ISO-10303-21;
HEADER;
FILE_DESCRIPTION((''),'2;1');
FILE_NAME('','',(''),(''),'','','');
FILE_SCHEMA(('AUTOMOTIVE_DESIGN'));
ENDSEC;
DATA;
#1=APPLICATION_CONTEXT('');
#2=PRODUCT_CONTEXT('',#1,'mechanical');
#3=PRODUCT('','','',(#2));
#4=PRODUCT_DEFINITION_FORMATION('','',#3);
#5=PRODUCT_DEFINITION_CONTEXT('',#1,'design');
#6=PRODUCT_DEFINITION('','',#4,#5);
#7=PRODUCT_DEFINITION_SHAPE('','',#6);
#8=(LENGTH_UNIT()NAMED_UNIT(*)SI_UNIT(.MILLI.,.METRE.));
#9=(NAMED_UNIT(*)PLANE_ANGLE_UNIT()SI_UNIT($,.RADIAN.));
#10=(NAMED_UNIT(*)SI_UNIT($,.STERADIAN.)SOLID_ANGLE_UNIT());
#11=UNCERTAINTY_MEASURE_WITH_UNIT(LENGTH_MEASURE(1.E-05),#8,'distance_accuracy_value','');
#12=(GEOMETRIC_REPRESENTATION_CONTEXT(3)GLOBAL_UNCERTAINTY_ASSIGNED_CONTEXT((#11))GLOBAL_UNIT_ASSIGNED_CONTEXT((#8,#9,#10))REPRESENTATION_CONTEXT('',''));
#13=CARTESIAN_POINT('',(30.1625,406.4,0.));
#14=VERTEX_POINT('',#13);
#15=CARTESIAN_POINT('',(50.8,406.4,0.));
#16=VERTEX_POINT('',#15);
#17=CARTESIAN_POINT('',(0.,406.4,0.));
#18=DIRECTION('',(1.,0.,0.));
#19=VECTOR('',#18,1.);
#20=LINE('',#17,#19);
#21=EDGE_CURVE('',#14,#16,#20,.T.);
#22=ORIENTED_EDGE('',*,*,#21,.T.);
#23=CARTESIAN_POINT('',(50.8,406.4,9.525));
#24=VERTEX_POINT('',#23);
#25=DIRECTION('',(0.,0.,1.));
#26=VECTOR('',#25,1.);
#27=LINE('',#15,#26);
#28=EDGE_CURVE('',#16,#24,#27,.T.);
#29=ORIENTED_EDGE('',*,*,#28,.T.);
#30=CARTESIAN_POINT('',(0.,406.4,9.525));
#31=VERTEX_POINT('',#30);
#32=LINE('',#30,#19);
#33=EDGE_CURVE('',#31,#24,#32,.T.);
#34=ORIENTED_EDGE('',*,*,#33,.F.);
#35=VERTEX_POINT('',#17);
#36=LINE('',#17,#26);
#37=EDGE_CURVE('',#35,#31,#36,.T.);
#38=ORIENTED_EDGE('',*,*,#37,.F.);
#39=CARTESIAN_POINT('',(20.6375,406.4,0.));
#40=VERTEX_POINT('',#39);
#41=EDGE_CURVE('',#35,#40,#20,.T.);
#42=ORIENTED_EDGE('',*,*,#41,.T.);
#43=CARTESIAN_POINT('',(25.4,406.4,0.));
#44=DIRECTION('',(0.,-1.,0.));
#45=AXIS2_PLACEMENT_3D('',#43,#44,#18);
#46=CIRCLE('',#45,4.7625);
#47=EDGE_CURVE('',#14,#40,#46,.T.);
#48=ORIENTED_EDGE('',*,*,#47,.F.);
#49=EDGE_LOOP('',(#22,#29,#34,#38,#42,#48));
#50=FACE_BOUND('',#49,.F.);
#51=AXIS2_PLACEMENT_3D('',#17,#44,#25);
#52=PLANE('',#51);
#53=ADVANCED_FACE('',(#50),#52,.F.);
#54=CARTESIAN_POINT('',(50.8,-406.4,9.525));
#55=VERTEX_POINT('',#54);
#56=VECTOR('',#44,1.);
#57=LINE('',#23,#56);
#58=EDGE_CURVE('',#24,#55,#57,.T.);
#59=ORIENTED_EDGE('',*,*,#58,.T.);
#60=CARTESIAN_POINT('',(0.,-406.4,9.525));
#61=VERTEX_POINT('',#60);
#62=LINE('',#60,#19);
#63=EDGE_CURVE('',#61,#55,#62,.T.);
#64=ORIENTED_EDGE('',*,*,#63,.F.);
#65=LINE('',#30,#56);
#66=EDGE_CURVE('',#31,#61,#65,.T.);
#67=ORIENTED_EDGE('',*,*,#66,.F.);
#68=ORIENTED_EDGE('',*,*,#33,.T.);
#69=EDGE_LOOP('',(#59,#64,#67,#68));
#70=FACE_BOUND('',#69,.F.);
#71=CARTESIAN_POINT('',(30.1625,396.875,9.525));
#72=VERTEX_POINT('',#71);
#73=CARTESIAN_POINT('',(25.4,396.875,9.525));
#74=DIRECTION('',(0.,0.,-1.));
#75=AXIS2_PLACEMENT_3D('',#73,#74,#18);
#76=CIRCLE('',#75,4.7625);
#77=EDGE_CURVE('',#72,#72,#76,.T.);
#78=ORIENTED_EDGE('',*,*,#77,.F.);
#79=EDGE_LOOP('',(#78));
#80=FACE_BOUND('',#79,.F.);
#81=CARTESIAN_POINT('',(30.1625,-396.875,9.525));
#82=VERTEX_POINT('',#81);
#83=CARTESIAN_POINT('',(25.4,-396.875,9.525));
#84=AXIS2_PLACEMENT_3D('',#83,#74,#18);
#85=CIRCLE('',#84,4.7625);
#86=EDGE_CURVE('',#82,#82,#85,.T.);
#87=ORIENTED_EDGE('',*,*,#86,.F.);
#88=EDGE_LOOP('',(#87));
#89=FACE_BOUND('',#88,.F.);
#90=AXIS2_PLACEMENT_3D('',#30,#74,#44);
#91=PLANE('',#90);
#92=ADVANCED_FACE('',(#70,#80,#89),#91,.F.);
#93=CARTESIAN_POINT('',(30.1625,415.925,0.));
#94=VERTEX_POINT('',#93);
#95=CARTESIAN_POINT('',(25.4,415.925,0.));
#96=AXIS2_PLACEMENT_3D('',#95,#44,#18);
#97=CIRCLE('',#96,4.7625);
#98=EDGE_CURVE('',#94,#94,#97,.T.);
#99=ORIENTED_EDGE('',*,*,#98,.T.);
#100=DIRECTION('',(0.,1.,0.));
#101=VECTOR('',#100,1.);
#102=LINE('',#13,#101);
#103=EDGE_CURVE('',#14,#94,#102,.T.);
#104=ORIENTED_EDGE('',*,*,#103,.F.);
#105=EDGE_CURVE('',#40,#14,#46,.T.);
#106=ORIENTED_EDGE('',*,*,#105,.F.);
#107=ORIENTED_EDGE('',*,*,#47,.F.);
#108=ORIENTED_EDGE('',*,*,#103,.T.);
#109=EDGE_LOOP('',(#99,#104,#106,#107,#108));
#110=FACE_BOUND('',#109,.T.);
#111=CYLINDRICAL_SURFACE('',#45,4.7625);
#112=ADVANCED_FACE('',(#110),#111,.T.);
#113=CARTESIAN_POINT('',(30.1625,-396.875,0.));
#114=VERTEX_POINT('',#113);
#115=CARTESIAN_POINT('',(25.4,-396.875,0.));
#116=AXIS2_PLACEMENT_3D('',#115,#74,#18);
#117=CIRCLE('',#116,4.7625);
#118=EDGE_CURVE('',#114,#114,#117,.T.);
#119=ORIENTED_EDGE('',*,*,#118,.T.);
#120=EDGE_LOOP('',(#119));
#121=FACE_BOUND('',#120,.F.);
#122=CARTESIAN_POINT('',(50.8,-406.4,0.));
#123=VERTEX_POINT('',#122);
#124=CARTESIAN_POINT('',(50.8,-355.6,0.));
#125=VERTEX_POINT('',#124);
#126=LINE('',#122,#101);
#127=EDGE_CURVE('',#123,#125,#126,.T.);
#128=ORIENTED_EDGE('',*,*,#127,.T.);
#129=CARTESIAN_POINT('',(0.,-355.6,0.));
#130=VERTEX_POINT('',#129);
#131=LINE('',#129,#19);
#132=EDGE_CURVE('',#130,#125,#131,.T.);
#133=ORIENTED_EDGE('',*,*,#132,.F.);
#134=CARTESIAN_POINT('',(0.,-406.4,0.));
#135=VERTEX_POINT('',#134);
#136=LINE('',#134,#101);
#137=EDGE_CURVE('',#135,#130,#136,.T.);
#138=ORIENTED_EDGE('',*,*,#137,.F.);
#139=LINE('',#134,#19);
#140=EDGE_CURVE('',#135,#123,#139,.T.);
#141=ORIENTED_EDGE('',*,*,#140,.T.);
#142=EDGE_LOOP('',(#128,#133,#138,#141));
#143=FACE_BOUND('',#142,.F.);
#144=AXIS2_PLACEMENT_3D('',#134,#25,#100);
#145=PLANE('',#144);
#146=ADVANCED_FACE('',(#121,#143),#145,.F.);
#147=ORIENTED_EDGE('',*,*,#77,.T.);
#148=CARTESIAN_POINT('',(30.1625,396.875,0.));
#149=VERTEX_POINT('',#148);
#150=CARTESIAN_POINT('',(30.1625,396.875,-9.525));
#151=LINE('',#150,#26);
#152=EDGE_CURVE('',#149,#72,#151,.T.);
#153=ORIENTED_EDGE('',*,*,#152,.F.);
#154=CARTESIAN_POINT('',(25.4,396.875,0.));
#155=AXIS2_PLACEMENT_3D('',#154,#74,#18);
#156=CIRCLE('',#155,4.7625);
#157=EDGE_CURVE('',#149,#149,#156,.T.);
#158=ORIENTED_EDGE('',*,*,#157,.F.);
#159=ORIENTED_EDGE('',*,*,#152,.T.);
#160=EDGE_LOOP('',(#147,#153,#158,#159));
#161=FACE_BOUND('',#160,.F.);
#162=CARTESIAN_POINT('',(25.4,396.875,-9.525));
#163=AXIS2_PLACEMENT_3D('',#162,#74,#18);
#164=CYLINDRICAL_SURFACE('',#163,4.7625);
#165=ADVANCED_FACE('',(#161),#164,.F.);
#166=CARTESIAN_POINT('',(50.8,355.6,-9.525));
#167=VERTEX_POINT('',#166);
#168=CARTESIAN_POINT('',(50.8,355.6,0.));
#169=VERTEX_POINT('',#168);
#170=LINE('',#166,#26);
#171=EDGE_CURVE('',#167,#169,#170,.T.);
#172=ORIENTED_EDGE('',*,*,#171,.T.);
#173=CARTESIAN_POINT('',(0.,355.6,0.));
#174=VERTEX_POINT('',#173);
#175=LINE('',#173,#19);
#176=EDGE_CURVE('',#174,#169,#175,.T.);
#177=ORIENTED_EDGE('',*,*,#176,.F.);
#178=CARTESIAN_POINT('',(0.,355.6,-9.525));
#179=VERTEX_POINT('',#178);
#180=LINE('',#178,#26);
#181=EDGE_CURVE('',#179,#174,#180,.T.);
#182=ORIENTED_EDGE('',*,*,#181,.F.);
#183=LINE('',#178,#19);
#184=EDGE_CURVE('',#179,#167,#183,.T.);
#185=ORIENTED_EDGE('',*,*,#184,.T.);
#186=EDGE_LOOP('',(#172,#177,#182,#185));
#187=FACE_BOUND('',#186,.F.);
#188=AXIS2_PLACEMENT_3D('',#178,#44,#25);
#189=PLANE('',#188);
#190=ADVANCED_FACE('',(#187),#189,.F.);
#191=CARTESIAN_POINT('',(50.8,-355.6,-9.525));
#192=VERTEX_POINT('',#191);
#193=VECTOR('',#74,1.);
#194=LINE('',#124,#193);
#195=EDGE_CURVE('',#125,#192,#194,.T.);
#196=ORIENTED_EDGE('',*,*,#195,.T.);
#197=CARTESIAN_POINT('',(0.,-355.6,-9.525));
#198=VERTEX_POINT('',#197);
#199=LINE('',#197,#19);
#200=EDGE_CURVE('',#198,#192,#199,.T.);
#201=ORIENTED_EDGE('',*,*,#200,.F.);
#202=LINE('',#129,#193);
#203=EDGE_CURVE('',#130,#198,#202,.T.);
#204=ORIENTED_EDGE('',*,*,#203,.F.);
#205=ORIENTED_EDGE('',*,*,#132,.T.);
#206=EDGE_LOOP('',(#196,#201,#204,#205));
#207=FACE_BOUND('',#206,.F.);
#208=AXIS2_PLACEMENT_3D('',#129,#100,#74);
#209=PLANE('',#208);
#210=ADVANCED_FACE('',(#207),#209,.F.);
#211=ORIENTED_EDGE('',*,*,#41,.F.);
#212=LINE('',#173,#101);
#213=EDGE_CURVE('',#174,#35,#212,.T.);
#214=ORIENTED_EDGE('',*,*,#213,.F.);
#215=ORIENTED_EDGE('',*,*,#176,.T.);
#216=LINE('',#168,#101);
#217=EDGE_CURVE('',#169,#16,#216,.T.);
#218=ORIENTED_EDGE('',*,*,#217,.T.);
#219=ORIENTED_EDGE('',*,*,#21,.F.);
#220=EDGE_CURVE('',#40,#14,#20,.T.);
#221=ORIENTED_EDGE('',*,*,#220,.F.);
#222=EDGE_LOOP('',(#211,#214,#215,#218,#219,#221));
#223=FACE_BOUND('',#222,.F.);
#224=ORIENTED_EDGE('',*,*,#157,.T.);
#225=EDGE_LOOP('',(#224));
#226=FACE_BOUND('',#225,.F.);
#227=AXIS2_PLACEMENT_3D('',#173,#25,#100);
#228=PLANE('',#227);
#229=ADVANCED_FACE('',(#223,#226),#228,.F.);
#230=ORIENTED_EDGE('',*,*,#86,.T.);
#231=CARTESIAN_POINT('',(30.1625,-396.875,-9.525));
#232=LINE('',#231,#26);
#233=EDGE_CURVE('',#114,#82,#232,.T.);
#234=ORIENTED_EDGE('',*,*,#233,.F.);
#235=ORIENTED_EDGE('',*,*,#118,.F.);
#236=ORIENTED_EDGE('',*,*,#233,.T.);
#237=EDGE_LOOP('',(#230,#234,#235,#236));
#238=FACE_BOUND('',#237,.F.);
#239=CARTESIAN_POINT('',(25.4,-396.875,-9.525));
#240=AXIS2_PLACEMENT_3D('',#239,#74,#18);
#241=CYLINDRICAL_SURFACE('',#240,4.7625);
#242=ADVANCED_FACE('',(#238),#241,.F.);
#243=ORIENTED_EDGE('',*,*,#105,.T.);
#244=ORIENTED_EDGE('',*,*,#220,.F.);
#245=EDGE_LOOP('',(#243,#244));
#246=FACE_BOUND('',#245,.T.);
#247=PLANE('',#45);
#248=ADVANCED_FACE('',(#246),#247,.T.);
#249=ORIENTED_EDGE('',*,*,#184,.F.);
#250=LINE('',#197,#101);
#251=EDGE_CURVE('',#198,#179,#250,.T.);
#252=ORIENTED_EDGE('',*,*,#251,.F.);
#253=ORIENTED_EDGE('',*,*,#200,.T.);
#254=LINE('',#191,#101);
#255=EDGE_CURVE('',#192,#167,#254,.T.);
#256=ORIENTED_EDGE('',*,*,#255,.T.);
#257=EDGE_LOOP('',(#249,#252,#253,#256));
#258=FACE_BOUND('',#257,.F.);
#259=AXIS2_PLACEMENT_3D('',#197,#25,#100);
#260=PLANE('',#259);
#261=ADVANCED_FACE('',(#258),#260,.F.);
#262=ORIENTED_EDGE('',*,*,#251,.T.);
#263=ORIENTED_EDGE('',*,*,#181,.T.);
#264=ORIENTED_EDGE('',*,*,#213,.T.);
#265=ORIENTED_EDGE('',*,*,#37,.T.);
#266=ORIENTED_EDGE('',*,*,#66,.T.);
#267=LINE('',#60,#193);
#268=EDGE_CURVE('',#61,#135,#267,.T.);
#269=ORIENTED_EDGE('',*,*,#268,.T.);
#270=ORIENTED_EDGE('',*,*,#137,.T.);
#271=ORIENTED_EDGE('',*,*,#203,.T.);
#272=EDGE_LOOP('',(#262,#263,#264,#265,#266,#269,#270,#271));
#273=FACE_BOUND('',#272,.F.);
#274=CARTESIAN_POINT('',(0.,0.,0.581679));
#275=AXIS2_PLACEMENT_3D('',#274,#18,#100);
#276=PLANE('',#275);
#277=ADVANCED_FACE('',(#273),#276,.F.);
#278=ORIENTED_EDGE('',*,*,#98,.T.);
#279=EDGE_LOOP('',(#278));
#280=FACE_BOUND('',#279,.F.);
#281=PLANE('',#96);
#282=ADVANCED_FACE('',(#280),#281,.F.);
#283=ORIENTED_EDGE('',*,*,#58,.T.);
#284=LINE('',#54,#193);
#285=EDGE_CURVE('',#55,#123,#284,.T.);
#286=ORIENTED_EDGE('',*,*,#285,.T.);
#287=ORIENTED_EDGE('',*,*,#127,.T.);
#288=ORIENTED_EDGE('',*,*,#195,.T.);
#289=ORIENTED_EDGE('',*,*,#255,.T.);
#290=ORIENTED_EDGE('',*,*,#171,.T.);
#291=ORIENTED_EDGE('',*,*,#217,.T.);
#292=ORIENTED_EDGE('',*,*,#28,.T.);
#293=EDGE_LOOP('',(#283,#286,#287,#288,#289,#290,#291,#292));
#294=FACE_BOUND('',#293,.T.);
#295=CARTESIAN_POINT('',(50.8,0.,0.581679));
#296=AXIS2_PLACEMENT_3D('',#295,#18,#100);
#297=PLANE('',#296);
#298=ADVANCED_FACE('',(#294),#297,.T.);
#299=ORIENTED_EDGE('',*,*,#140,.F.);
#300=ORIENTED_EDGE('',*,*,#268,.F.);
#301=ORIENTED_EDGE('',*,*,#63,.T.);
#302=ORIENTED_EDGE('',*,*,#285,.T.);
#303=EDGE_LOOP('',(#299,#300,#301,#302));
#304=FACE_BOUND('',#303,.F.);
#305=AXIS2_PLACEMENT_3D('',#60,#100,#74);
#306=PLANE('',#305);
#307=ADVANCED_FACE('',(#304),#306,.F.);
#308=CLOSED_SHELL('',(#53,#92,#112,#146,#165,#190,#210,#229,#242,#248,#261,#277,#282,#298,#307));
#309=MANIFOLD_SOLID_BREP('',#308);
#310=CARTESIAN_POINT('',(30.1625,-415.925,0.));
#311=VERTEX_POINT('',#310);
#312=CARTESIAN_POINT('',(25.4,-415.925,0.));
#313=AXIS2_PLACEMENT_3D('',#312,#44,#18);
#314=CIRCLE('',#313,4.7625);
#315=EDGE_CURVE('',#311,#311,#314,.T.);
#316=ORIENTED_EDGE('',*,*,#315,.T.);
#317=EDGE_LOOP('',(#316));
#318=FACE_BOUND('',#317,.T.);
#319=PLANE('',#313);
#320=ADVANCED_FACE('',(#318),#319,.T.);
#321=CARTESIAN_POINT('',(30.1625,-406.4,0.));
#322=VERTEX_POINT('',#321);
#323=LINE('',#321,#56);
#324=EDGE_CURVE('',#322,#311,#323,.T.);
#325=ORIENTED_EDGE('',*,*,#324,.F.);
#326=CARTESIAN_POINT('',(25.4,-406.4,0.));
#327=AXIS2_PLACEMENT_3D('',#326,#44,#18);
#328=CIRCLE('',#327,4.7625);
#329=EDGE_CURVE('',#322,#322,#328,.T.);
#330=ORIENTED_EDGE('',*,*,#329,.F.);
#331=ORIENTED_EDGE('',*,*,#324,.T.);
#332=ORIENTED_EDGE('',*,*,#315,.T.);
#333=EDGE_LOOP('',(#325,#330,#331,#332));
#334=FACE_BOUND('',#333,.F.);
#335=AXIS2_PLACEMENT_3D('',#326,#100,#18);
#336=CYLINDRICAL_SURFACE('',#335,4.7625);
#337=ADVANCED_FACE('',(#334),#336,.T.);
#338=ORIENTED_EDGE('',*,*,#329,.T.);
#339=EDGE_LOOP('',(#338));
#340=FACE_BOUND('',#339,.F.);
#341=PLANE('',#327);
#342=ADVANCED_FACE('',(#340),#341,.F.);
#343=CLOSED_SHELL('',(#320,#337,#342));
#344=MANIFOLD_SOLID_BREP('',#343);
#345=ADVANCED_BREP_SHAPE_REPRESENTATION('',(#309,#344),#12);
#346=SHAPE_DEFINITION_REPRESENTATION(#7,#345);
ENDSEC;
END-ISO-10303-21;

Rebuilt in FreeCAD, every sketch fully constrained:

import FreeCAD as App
import Part
import Sketcher
Q = App.Units.Quantity


def add_polygon(sketch, points):
    """Adds a closed chain of lines whose ends are joined by coincident constraints."""
    first, n = sketch.GeometryCount, len(points)
    for a, b in zip(points, points[1:] + points[:1]):
        sketch.addGeometry(Part.LineSegment(App.Vector(*a, 0), App.Vector(*b, 0)), False)
    for i in range(n):
        sketch.addConstraint(Sketcher.Constraint("Coincident", first + i, 2, first + (i + 1) % n, 1))

doc = App.newDocument("Part")
body = doc.addObject("PartDesign::Body", "Body")

sketch1 = body.newObject("Sketcher::SketchObject", "Sketch")
sketch1.AttachmentSupport = (doc.getObject("YZ_Plane"), [""])
sketch1.MapMode = "FlatFace"
add_polygon(sketch1, [(-355.6, 0), (-355.6, -9.525), (355.6, -9.525), (355.6, 0), (406.4, 0), (406.4, 9.525), (-406.4, 9.525), (-406.4, 0)])
sketch1.addConstraint(Sketcher.Constraint("Vertical", 0))
sketch1.addConstraint(Sketcher.Constraint("Horizontal", 1))
sketch1.addConstraint(Sketcher.Constraint("Vertical", 2))
sketch1.addConstraint(Sketcher.Constraint("Horizontal", 3))
sketch1.addConstraint(Sketcher.Constraint("Vertical", 4))
sketch1.addConstraint(Sketcher.Constraint("Horizontal", 5))
sketch1.addConstraint(Sketcher.Constraint("Vertical", 6))
sketch1.addConstraint(Sketcher.Constraint("Horizontal", 7))
sketch1.addConstraint(Sketcher.Constraint("Symmetric", 3, 2, 6, 2, -1, 1))
sketch1.addConstraint(Sketcher.Constraint("Symmetric", 2, 2, 7, 2, -2))
sketch1.addConstraint(Sketcher.Constraint("Equal", 2, 4))
sketch1.addConstraint(Sketcher.Constraint("DistanceX", 1, 1, 1, 2, Q("28 in")))
sketch1.addConstraint(Sketcher.Constraint("DistanceX", 3, 1, 3, 2, Q("2 in")))
sketch1.addConstraint(Sketcher.Constraint("DistanceY", 0, 2, 0, 1, Q("0.375 in")))
pad1 = body.newObject("PartDesign::Pad", "Pad")
pad1.Profile = sketch1
pad1.Length = Q("2 in")

sketch2 = body.newObject("Sketcher::SketchObject", "Sketch001")
sketch2.AttachmentSupport = (doc.getObject("XY_Plane"), [""])
sketch2.MapMode = "FlatFace"
sketch2.AttachmentOffset = App.Placement(App.Vector(0, 0, -0.375 * 25.4), App.Rotation())
sketch2.addGeometry(Part.Circle(App.Vector(25.4, 396.875, 0), App.Vector(0, 0, 1), 4.7625), False)
sketch2.addGeometry(Part.Circle(App.Vector(25.4, -396.875, 0), App.Vector(0, 0, 1), 4.7625), False)
sketch2.addConstraint(Sketcher.Constraint("Equal", 0, 1))
sketch2.addConstraint(Sketcher.Constraint("Symmetric", 0, 3, 1, 3, -1))
sketch2.addConstraint(Sketcher.Constraint("Diameter", 0, Q("0.375 in")))
sketch2.addConstraint(Sketcher.Constraint("DistanceX", -1, 1, 0, 3, Q("1 in")))
sketch2.addConstraint(Sketcher.Constraint("DistanceY", 1, 3, 0, 3, Q("31.25 in")))
pocket1 = body.newObject("PartDesign::Pocket", "Pocket")
pocket1.Profile = sketch2
pocket1.Length = Q("1 in")
pocket1.Reversed = True

sketch3 = body.newObject("Sketcher::SketchObject", "Sketch002")
sketch3.AttachmentSupport = (doc.getObject("XZ_Plane"), [""])
sketch3.MapMode = "FlatFace"
sketch3.AttachmentOffset = App.Placement(App.Vector(0, 0, -16 * 25.4), App.Rotation())
sketch3.addGeometry(Part.Circle(App.Vector(25.4, 0, 0), App.Vector(0, 0, 1), 4.7625), False)
sketch3.addConstraint(Sketcher.Constraint("PointOnObject", 0, 3, -1))
sketch3.addConstraint(Sketcher.Constraint("Diameter", 0, Q("0.375 in")))
sketch3.addConstraint(Sketcher.Constraint("DistanceX", -1, 1, 0, 3, Q("1 in")))
pad2 = body.newObject("PartDesign::Pad", "Pad001")
pad2.Profile = sketch3
pad2.Length = Q("0.375 in")
pad2.Reversed = True
body2 = doc.addObject("PartDesign::Body", "Body001")

sketch4 = body2.newObject("Sketcher::SketchObject", "Sketch003")
sketch4.AttachmentSupport = (doc.getObject("XZ_Plane001"), [""])
sketch4.MapMode = "FlatFace"
sketch4.AttachmentOffset = App.Placement(App.Vector(0, 0, 16 * 25.4), App.Rotation())
sketch4.addGeometry(Part.Circle(App.Vector(25.4, 0, 0), App.Vector(0, 0, 1), 4.7625), False)
sketch4.addConstraint(Sketcher.Constraint("PointOnObject", 0, 3, -1))
sketch4.addConstraint(Sketcher.Constraint("Diameter", 0, Q("0.375 in")))
sketch4.addConstraint(Sketcher.Constraint("DistanceX", -1, 1, 0, 3, Q("1 in")))
pad3 = body2.newObject("PartDesign::Pad", "Pad002")
pad3.Profile = sketch4
pad3.Length = Q("0.375 in")

doc.recompute()
